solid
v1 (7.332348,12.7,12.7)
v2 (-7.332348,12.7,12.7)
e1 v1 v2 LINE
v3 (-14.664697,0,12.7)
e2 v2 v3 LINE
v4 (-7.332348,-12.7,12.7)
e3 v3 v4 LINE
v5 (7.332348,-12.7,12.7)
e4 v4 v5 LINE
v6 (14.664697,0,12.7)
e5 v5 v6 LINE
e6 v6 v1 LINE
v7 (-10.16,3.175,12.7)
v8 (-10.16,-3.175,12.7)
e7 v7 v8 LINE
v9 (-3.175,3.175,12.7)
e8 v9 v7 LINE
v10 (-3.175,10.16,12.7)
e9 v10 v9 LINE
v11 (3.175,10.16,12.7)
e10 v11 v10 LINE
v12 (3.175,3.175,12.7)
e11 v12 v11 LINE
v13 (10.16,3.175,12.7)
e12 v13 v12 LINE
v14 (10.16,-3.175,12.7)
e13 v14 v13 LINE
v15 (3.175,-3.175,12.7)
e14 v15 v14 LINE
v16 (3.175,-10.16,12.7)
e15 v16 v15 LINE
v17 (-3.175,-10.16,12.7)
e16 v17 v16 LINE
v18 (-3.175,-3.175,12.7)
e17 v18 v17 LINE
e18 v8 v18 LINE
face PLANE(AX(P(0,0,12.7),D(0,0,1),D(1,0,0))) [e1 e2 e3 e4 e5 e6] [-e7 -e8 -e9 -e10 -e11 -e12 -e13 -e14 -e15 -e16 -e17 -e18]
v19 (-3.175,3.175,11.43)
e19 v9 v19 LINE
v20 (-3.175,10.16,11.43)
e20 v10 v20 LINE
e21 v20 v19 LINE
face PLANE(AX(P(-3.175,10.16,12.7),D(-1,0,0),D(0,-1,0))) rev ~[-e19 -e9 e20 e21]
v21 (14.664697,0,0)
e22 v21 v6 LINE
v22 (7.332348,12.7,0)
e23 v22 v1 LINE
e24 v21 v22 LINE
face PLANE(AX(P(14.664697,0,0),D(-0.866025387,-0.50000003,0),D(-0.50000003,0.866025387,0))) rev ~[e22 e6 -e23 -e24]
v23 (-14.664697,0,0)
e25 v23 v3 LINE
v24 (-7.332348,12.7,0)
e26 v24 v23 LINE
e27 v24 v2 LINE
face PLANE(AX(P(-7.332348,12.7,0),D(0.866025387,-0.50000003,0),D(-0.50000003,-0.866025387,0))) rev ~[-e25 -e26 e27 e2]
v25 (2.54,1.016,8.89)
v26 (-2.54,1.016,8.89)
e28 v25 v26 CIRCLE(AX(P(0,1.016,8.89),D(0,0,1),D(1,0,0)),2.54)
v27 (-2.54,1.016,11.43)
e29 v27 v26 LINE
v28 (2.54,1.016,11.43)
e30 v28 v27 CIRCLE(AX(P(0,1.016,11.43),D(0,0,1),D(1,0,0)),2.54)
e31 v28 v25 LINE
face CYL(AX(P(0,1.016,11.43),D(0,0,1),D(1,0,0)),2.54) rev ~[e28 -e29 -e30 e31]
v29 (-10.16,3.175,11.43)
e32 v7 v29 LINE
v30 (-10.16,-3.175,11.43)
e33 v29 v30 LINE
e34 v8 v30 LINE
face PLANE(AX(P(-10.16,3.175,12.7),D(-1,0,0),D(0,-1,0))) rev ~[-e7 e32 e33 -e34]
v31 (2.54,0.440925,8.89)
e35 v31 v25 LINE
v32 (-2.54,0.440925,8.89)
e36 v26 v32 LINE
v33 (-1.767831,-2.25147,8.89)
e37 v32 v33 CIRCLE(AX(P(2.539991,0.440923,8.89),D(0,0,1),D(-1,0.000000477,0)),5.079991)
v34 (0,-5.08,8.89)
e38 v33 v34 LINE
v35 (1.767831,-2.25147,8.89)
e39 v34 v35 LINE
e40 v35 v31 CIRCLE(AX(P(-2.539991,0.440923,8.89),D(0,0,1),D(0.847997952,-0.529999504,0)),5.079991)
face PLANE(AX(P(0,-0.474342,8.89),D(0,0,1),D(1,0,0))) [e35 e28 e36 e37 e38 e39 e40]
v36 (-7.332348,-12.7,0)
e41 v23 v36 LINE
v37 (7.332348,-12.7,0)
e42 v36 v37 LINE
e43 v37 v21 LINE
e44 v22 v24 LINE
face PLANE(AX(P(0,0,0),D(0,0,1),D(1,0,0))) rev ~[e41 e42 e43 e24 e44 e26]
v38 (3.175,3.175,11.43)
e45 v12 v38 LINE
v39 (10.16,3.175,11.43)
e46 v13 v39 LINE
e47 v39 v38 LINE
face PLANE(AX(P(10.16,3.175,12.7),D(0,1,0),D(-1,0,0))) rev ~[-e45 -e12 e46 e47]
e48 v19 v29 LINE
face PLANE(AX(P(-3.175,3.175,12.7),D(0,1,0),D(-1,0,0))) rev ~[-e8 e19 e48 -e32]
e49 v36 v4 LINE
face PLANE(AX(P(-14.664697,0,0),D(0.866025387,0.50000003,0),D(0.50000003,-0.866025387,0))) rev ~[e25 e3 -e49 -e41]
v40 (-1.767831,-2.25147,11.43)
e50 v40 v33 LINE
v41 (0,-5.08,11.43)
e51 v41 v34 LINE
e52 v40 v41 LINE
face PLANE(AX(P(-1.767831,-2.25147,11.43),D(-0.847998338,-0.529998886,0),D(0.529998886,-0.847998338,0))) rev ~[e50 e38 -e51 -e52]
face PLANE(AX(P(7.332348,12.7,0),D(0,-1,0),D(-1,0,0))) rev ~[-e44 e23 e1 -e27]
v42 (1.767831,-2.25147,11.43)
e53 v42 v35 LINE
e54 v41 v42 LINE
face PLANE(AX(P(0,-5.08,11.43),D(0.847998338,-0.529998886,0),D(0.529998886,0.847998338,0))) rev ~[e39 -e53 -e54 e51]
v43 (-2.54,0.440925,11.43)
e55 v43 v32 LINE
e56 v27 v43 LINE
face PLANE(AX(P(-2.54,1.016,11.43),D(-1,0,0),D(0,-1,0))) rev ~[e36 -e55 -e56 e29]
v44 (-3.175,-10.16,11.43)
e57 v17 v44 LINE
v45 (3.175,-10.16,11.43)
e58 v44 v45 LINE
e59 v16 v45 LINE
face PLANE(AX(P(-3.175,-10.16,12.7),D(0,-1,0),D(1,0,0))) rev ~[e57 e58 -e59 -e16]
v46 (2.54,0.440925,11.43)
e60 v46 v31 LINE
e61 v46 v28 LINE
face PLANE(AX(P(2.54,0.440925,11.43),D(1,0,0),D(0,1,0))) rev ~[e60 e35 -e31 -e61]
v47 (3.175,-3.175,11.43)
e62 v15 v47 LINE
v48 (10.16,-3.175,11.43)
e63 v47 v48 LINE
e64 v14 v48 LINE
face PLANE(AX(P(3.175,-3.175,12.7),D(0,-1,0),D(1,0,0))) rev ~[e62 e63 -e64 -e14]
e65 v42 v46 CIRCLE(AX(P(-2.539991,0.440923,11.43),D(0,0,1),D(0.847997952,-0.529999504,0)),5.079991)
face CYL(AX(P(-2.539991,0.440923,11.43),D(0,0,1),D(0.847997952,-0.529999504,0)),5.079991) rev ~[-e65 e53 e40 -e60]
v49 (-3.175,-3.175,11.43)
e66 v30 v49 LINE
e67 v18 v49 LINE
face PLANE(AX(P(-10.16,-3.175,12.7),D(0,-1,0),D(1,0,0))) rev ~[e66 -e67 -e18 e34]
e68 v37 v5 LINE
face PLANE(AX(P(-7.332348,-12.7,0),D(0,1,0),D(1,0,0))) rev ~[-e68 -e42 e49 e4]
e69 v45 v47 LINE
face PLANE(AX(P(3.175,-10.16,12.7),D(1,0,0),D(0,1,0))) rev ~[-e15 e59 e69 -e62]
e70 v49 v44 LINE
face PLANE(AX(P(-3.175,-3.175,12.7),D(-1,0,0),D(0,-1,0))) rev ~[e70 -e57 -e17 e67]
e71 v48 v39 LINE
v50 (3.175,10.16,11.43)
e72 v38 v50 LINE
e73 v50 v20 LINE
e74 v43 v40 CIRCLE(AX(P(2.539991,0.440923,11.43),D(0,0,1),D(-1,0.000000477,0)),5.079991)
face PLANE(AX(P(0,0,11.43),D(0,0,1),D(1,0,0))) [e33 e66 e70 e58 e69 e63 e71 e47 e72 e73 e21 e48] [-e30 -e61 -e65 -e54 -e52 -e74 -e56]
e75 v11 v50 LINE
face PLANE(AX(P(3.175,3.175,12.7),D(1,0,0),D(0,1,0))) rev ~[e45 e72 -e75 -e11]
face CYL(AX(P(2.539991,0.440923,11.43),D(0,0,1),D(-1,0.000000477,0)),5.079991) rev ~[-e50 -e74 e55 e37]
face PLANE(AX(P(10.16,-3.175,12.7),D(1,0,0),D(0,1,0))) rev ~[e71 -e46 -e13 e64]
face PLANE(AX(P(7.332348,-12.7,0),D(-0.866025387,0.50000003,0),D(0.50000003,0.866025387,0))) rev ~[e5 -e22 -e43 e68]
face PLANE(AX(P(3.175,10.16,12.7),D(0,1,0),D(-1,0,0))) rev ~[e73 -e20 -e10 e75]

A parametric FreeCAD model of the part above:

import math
import FreeCAD as App
import Part
import Sketcher

V = App.Vector
Q = App.Units.Quantity

doc = App.newDocument("Part")
body = doc.addObject("PartDesign::Body", "Body")

sketch1 = body.newObject("Sketcher::SketchObject", "Sketch")
sketch1.AttachmentSupport = (doc.getObject("XY_Plane"), [""])
sketch1.MapMode = "FlatFace"
sketch1.addGeometry(Part.LineSegment(V(14.664697, 0, 0), V(7.332348, 12.7, 0)), False)
sketch1.addGeometry(Part.LineSegment(V(7.332348, 12.7, 0), V(-7.332348, 12.7, 0)), False)
sketch1.addGeometry(Part.LineSegment(V(-7.332348, 12.7, 0), V(-14.664697, 0, 0)), False)
sketch1.addGeometry(Part.LineSegment(V(-14.664697, 0, 0), V(-7.332348, -12.7, 0)), False)
sketch1.addGeometry(Part.LineSegment(V(-7.332348, -12.7, 0), V(7.332348, -12.7, 0)), False)
sketch1.addGeometry(Part.LineSegment(V(7.332348, -12.7, 0), V(14.664697, 0, 0)), False)
sketch1.addConstraint(Sketcher.Constraint("Coincident", 0, 2, 1, 1))
sketch1.addConstraint(Sketcher.Constraint("Coincident", 1, 2, 2, 1))
sketch1.addConstraint(Sketcher.Constraint("Coincident", 2, 2, 3, 1))
sketch1.addConstraint(Sketcher.Constraint("Coincident", 3, 2, 4, 1))
sketch1.addConstraint(Sketcher.Constraint("Coincident", 4, 2, 5, 1))
sketch1.addConstraint(Sketcher.Constraint("Coincident", 5, 2, 0, 1))
sketch1.addConstraint(Sketcher.Constraint("Horizontal", 1))
sketch1.addConstraint(Sketcher.Constraint("Horizontal", 4))
sketch1.addConstraint(Sketcher.Constraint("Symmetric", 0, 2, 3, 2, -1, 1))
sketch1.addConstraint(Sketcher.Constraint("Symmetric", 2, 2, 5, 2, -1, 1))
sketch1.addConstraint(Sketcher.Constraint("PointOnObject", 2, 2, -1))
sketch1.addConstraint(Sketcher.Constraint("Parallel", 2, 5))
sketch1.addConstraint(Sketcher.Constraint("Vertical", 1, 2, 3, 2))
sketch1.addConstraint(Sketcher.Constraint("Angle", 0, Q("120.000002 deg")))
sketch1.addConstraint(Sketcher.Constraint("DistanceY", 3, 2, 1, 2, Q("1 in")))
sketch1.addConstraint(Sketcher.Constraint("DistanceX", 1, 2, 1, 1, 14.664696))
pad1 = body.newObject("PartDesign::Pad", "Pad")
pad1.Profile = sketch1
pad1.Length = Q("0.5 in")

sketch2 = body.newObject("Sketcher::SketchObject", "Sketch001")
sketch2.AttachmentSupport = (doc.getObject("XY_Plane"), [""])
sketch2.MapMode = "FlatFace"
sketch2.AttachmentOffset = App.Placement(V(0, 0, 0.5 * 25.4), App.Rotation())
sketch2.addGeometry(Part.LineSegment(V(3.175, 10.16, 0), V(-3.175, 10.16, 0)), False)
sketch2.addGeometry(Part.LineSegment(V(-3.175, 10.16, 0), V(-3.175, 3.175, 0)), False)
sketch2.addGeometry(Part.LineSegment(V(-3.175, 3.175, 0), V(-10.16, 3.175, 0)), False)
sketch2.addGeometry(Part.LineSegment(V(-10.16, 3.175, 0), V(-10.16, -3.175, 0)), False)
sketch2.addGeometry(Part.LineSegment(V(-10.16, -3.175, 0), V(-3.175, -3.175, 0)), False)
sketch2.addGeometry(Part.LineSegment(V(-3.175, -3.175, 0), V(-3.175, -10.16, 0)), False)
sketch2.addGeometry(Part.LineSegment(V(-3.175, -10.16, 0), V(3.175, -10.16, 0)), False)
sketch2.addGeometry(Part.LineSegment(V(3.175, -10.16, 0), V(3.175, -3.175, 0)), False)
sketch2.addGeometry(Part.LineSegment(V(3.175, -3.175, 0), V(10.16, -3.175, 0)), False)
sketch2.addGeometry(Part.LineSegment(V(10.16, -3.175, 0), V(10.16, 3.175, 0)), False)
sketch2.addGeometry(Part.LineSegment(V(10.16, 3.175, 0), V(3.175, 3.175, 0)), False)
sketch2.addGeometry(Part.LineSegment(V(3.175, 3.175, 0), V(3.175, 10.16, 0)), False)
sketch2.addConstraint(Sketcher.Constraint("Coincident", 0, 2, 1, 1))
sketch2.addConstraint(Sketcher.Constraint("Coincident", 1, 2, 2, 1))
sketch2.addConstraint(Sketcher.Constraint("Coincident", 2, 2, 3, 1))
sketch2.addConstraint(Sketcher.Constraint("Coincident", 3, 2, 4, 1))
sketch2.addConstraint(Sketcher.Constraint("Coincident", 4, 2, 5, 1))
sketch2.addConstraint(Sketcher.Constraint("Coincident", 5, 2, 6, 1))
sketch2.addConstraint(Sketcher.Constraint("Coincident", 6, 2, 7, 1))
sketch2.addConstraint(Sketcher.Constraint("Coincident", 7, 2, 8, 1))
sketch2.addConstraint(Sketcher.Constraint("Coincident", 8, 2, 9, 1))
sketch2.addConstraint(Sketcher.Constraint("Coincident", 9, 2, 10, 1))
sketch2.addConstraint(Sketcher.Constraint("Coincident", 10, 2, 11, 1))
sketch2.addConstraint(Sketcher.Constraint("Coincident", 11, 2, 0, 1))
sketch2.addConstraint(Sketcher.Constraint("Horizontal", 0))
sketch2.addConstraint(Sketcher.Constraint("Vertical", 1))
sketch2.addConstraint(Sketcher.Constraint("Horizontal", 2))
sketch2.addConstraint(Sketcher.Constraint("Vertical", 3))
sketch2.addConstraint(Sketcher.Constraint("Horizontal", 4))
sketch2.addConstraint(Sketcher.Constraint("Vertical", 5))
sketch2.addConstraint(Sketcher.Constraint("Horizontal", 6))
sketch2.addConstraint(Sketcher.Constraint("Vertical", 7))
sketch2.addConstraint(Sketcher.Constraint("Horizontal", 8))
sketch2.addConstraint(Sketcher.Constraint("Vertical", 9))
sketch2.addConstraint(Sketcher.Constraint("Horizontal", 10))
sketch2.addConstraint(Sketcher.Constraint("Vertical", 11))
sketch2.addConstraint(Sketcher.Constraint("Symmetric", 0, 2, 6, 2, -1, 1))
sketch2.addConstraint(Sketcher.Constraint("Symmetric", 2, 2, 8, 2, -1, 1))
sketch2.addConstraint(Sketcher.Constraint("Symmetric", 4, 2, 10, 2, -1, 1))
sketch2.addConstraint(Sketcher.Constraint("Symmetric", 4, 2, 7, 2, -2))
sketch2.addConstraint(Sketcher.Constraint("Equal", 10, 1))
sketch2.addConstraint(Sketcher.Constraint("Equal", 6, 3))
sketch2.addConstraint(Sketcher.Constraint("DistanceX", 0, 2, 0, 1, Q("0.25 in")))
sketch2.addConstraint(Sketcher.Constraint("DistanceY", -1, 1, 0, 2, Q("0.4 in")))
pocket1 = body.newObject("PartDesign::Pocket", "Pocket")
pocket1.Profile = sketch2
pocket1.Length = Q("0.05 in")

sketch3 = body.newObject("Sketcher::SketchObject", "Sketch002")
sketch3.AttachmentSupport = (doc.getObject("XY_Plane"), [""])
sketch3.MapMode = "FlatFace"
sketch3.AttachmentOffset = App.Placement(V(0, 0, 0.45 * 25.4), App.Rotation())
sketch3.addGeometry(Part.LineSegment(V(2.54, 0.440925, 0), V(2.54, 1.016, 0)), False)
sketch3.addGeometry(Part.ArcOfCircle(Part.Circle(V(0, 1.016, 0), V(0, 0, 1), 2.54), math.radians(0), math.radians(180)), False)
sketch3.addGeometry(Part.LineSegment(V(-2.54, 1.016, 0), V(-2.54, 0.440925, 0)), False)
sketch3.addGeometry(Part.ArcOfCircle(Part.Circle(V(2.539991, 0.440923, 0), V(0, 0, 1), 5.079991), math.radians(179.999973), math.radians(212.005421)), False)
sketch3.addGeometry(Part.LineSegment(V(-1.767831, -2.25147, 0), V(0, -5.08, 0)), False)
sketch3.addGeometry(Part.LineSegment(V(0, -5.08, 0), V(1.767831, -2.25147, 0)), False)
sketch3.addGeometry(Part.ArcOfCircle(Part.Circle(V(-2.539991, 0.440923, 0), V(0, 0, 1), 5.079991), math.radians(-32.005421), math.radians(0.000027)), False)
sketch3.addConstraint(Sketcher.Constraint("Tangent", 0, 2, 1, 1))
sketch3.addConstraint(Sketcher.Constraint("Tangent", 1, 2, 2, 1))
sketch3.addConstraint(Sketcher.Constraint("Tangent", 2, 2, 3, 1))
sketch3.addConstraint(Sketcher.Constraint("Tangent", 3, 2, 4, 1))
sketch3.addConstraint(Sketcher.Constraint("Coincident", 4, 2, 5, 1))
sketch3.addConstraint(Sketcher.Constraint("Tangent", 5, 2, 6, 1))
sketch3.addConstraint(Sketcher.Constraint("Tangent", 6, 2, 0, 1))
sketch3.addConstraint(Sketcher.Constraint("Vertical", 0))
sketch3.addConstraint(Sketcher.Constraint("Vertical", 2))
sketch3.addConstraint(Sketcher.Constraint("Coincident", 2, 2, 6, 3))
sketch3.addConstraint(Sketcher.Constraint("Equal", 3, 6))
sketch3.addConstraint(Sketcher.Constraint("Symmetric", 3, 2, 5, 2, -2))
sketch3.addConstraint(Sketcher.Constraint("Radius", 1, Q("0.1 in")))
sketch3.addConstraint(Sketcher.Constraint("DistanceY", 4, 2, -1, 1, Q("0.2 in")))
sketch3.addConstraint(Sketcher.Constraint("DistanceY", -1, 1, 1, 3, Q("0.04 in")))
sketch3.addConstraint(Sketcher.Constraint("DistanceY", 3, 2, 2, 2, Q("0.1059998 in")))
pocket2 = body.newObject("PartDesign::Pocket", "Pocket001")
pocket2.Profile = sketch3
pocket2.Length = Q("0.1 in")

doc.recompute()
